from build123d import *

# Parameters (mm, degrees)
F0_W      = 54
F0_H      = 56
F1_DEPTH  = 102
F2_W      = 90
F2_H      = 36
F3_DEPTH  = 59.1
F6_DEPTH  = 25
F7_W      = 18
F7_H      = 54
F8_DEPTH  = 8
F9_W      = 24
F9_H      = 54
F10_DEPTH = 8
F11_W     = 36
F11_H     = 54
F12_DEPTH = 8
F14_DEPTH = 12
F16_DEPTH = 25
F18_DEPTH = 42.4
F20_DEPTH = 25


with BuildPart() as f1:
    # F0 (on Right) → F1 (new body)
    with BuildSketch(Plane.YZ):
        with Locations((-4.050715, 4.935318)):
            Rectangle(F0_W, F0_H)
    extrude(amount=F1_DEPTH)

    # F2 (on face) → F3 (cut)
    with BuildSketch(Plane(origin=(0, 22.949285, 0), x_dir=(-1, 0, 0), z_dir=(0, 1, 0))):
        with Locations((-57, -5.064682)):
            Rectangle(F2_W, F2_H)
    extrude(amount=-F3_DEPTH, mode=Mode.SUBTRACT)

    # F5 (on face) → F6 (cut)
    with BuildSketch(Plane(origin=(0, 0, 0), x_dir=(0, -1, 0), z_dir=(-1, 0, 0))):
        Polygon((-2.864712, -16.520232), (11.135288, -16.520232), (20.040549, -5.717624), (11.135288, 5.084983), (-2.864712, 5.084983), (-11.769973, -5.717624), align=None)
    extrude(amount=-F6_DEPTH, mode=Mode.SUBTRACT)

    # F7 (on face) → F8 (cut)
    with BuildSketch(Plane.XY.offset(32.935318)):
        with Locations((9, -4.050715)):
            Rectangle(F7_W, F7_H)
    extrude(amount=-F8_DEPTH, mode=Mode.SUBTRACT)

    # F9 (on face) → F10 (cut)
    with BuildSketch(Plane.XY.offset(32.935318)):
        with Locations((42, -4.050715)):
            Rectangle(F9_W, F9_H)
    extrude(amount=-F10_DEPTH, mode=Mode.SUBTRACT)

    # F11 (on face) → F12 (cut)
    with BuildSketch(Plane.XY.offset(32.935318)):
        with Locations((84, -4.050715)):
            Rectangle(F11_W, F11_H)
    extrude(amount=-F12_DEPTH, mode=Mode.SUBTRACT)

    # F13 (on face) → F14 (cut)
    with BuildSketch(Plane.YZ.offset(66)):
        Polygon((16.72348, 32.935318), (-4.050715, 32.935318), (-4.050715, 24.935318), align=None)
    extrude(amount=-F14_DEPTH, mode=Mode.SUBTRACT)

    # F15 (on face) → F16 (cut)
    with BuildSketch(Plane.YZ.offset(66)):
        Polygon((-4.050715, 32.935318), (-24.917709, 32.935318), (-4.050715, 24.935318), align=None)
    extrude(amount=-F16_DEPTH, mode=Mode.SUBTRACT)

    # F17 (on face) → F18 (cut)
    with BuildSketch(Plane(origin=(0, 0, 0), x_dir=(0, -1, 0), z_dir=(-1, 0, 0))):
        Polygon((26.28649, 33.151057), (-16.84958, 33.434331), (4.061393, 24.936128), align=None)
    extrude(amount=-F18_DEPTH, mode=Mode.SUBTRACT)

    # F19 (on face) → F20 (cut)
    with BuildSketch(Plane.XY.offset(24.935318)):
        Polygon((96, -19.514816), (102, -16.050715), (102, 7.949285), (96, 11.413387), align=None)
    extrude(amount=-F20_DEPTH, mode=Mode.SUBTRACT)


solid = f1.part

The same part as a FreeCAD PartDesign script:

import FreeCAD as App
import Part
import Sketcher
Q = App.Units.Quantity


def add_polygon(sketch, points):
    """Adds a closed chain of lines whose ends are joined by coincident constraints."""
    first, n = sketch.GeometryCount, len(points)
    for a, b in zip(points, points[1:] + points[:1]):
        sketch.addGeometry(Part.LineSegment(App.Vector(*a, 0), App.Vector(*b, 0)), False)
    for i in range(n):
        sketch.addConstraint(Sketcher.Constraint("Coincident", first + i, 2, first + (i + 1) % n, 1))

doc = App.newDocument("Part")
params = doc.addObject("Spreadsheet::Sheet", "Params")
for row, (alias, value) in enumerate([
    ("sketch1_width", "54 mm"),
    ("sketch1_height", "56 mm"),
    ("pad1_length", "102 mm"),
    ("sketch2_width", "90 mm"),
    ("sketch2_height", "36 mm"),
    ("pocket1_length", "59.1 mm"),
    ("sketch3_width", "14 mm"),
    ("sketch3_length", "14 mm"),
    ("pocket2_length", "25 mm"),
    ("sketch4_width", "18 mm"),
    ("sketch4_height", "54 mm"),
    ("pocket3_length", "8 mm"),
    ("sketch5_width", "24 mm"),
    ("sketch5_height", "54 mm"),
    ("pocket4_length", "8 mm"),
    ("sketch6_width", "36 mm"),
    ("sketch6_height", "54 mm"),
    ("pocket5_length", "8 mm"),
    ("sketch7_height", "8 mm"),
    ("pocket6_length", "12 mm"),
    ("sketch8_height", "8 mm"),
    ("pocket7_length", "25 mm"),
    ("pocket8_length", "42.4 mm"),
    ("sketch10_height", "24 mm"),
    ("pocket9_length", "25 mm"),
], start=1):
    params.set(f"A{row}", alias)
    params.set(f"B{row}", "=" + value)
    params.setAlias(f"B{row}", alias)

body = doc.addObject("PartDesign::Body", "Body")

# Sketch on YZ plane
sketch1 = doc.addObject("Sketcher::SketchObject", "Sketch")
body.addObject(sketch1)
sketch1.AttachmentSupport = (doc.YZ_Plane, [""])
sketch1.MapMode = "FlatFace"
add_polygon(sketch1, [(-31.050715, 32.935318), (-31.050715, -23.064682), (22.949285, -23.064682), (22.949285, 32.935318)])  # lines 0-3
sketch1.addConstraint(Sketcher.Constraint("Vertical", 0))
sketch1.addConstraint(Sketcher.Constraint("Horizontal", 1))
sketch1.addConstraint(Sketcher.Constraint("Vertical", 2))
sketch1.addConstraint(Sketcher.Constraint("Horizontal", 3))
sketch1.addConstraint(Sketcher.Constraint("DistanceX", 1, 1, 1, 2, 54.0))
sketch1.addConstraint(Sketcher.Constraint("DistanceY", 0, 2, 0, 1, 56.0))
sketch1.addConstraint(Sketcher.Constraint("DistanceY", -1, 1, 2, 2, 32.935318))
sketch1.addConstraint(Sketcher.Constraint("DistanceX", 0, 2, -1, 1, 31.050715))
sketch1.setExpression("Constraints[8]", "Params.sketch1_width")
sketch1.setExpression("Constraints[9]", "Params.sketch1_height")
pad1 = doc.addObject("PartDesign::Pad", "Pad")
body.addObject(pad1)
pad1.Profile = sketch1
pad1.setExpression("Length", "Params.pad1_length")

# Sketch on XZ plane
sketch2 = doc.addObject("Sketcher::SketchObject", "Sketch001")
body.addObject(sketch2)
sketch2.AttachmentSupport = (doc.XZ_Plane, [""])
sketch2.MapMode = "FlatFace"
sketch2.AttachmentOffset = App.Placement(App.Vector(0, 0, -22.949285), App.Rotation())
add_polygon(sketch2, [(102, 12.935318), (102, -23.064682), (12, -23.064682), (12, 12.935318)])  # lines 0-3
sketch2.addConstraint(Sketcher.Constraint("Vertical", 0))
sketch2.addConstraint(Sketcher.Constraint("Horizontal", 1))
sketch2.addConstraint(Sketcher.Constraint("Vertical", 2))
sketch2.addConstraint(Sketcher.Constraint("Horizontal", 3))
sketch2.addConstraint(Sketcher.Constraint("DistanceX", 1, 2, 1, 1, 90.0))
sketch2.addConstraint(Sketcher.Constraint("DistanceY", 0, 2, 0, 1, 36.0))
sketch2.addConstraint(Sketcher.Constraint("DistanceX", -1, 1, 0, 2, 102.0))
sketch2.addConstraint(Sketcher.Constraint("DistanceY", 0, 2, -1, 1, 23.064682))
sketch2.setExpression("Constraints[8]", "Params.sketch2_width")
sketch2.setExpression("Constraints[9]", "Params.sketch2_height")
pocket1 = doc.addObject("PartDesign::Pocket", "Pocket")
body.addObject(pocket1)
pocket1.Profile = sketch2
pocket1.setExpression("Length", "Params.pocket1_length")
pocket1.Reversed = True

# Sketch on YZ plane
sketch3 = doc.addObject("Sketcher::SketchObject", "Sketch002")
body.addObject(sketch3)
sketch3.AttachmentSupport = (doc.YZ_Plane, [""])
sketch3.MapMode = "FlatFace"
add_polygon(sketch3, [(2.864712, -16.520232), (-11.135288, -16.520232), (-20.040549, -5.717624), (-11.135288, 5.084983), (2.864712, 5.084983), (11.769973, -5.717624)])  # lines 0-5
sketch3.addConstraint(Sketcher.Constraint("Horizontal", 0))
sketch3.addConstraint(Sketcher.Constraint("Horizontal", 3))
sketch3.addConstraint(Sketcher.Constraint("Parallel", 1, 4))
sketch3.addConstraint(Sketcher.Constraint("Parallel", 2, 5))
sketch3.addConstraint(Sketcher.Constraint("Horizontal", 1, 2, 4, 2))
sketch3.addConstraint(Sketcher.Constraint("Vertical", 0, 2, 2, 2))
sketch3.addConstraint(Sketcher.Constraint("Vertical", 3, 2, 5, 2))
sketch3.addConstraint(Sketcher.Constraint("DistanceX", 0, 2, 0, 1, 14.0))
sketch3.addConstraint(Sketcher.Constraint("Distance", 1, 14.0))
sketch3.addConstraint(Sketcher.Constraint("DistanceY", 0, 2, -1, 1, 16.520232))
sketch3.addConstraint(Sketcher.Constraint("DistanceX", 1, 2, -1, 1, 20.040549))
sketch3.addConstraint(Sketcher.Constraint("DistanceX", -1, 1, 3, 2, 2.864712))
sketch3.setExpression("Constraints[13]", "Params.sketch3_width")
sketch3.setExpression("Constraints[14]", "Params.sketch3_length")
pocket2 = doc.addObject("PartDesign::Pocket", "Pocket001")
body.addObject(pocket2)
pocket2.Profile = sketch3
pocket2.setExpression("Length", "Params.pocket2_length")
pocket2.Reversed = True

# Sketch on XY plane
sketch4 = doc.addObject("Sketcher::SketchObject", "Sketch003")
body.addObject(sketch4)
sketch4.AttachmentSupport = (doc.XY_Plane, [""])
sketch4.MapMode = "FlatFace"
sketch4.AttachmentOffset = App.Placement(App.Vector(0, 0, 32.935318), App.Rotation())
add_polygon(sketch4, [(0, 22.949285), (0, -31.050715), (18, -31.050715), (18, 22.949285)])  # lines 0-3
sketch4.addConstraint(Sketcher.Constraint("Vertical", 0))
sketch4.addConstraint(Sketcher.Constraint("Horizontal", 1))
sketch4.addConstraint(Sketcher.Constraint("Vertical", 2))
sketch4.addConstraint(Sketcher.Constraint("Horizontal", 3))
sketch4.addConstraint(Sketcher.Constraint("PointOnObject", 0, 2, -2))
sketch4.addConstraint(Sketcher.Constraint("DistanceX", 1, 1, 1, 2, 18.0))
sketch4.addConstraint(Sketcher.Constraint("DistanceY", 0, 2, 0, 1, 54.0))
sketch4.addConstraint(Sketcher.Constraint("DistanceY", 0, 2, -1, 1, 31.050715))
sketch4.setExpression("Constraints[9]", "Params.sketch4_width")
sketch4.setExpression("Constraints[10]", "Params.sketch4_height")
pocket3 = doc.addObject("PartDesign::Pocket", "Pocket002")
body.addObject(pocket3)
pocket3.Profile = sketch4
pocket3.setExpression("Length", "Params.pocket3_length")

# Sketch on XY plane
sketch5 = doc.addObject("Sketcher::SketchObject", "Sketch004")
body.addObject(sketch5)
sketch5.AttachmentSupport = (doc.XY_Plane, [""])
sketch5.MapMode = "FlatFace"
sketch5.AttachmentOffset = App.Placement(App.Vector(0, 0, 32.935318), App.Rotation())
add_polygon(sketch5, [(30, 22.949285), (30, -31.050715), (54, -31.050715), (54, 22.949285)])  # lines 0-3
sketch5.addConstraint(Sketcher.Constraint("Vertical", 0))
sketch5.addConstraint(Sketcher.Constraint("Horizontal", 1))
sketch5.addConstraint(Sketcher.Constraint("Vertical", 2))
sketch5.addConstraint(Sketcher.Constraint("Horizontal", 3))
sketch5.addConstraint(Sketcher.Constraint("DistanceX", 1, 1, 1, 2, 24.0))
sketch5.addConstraint(Sketcher.Constraint("DistanceY", 0, 2, 0, 1, 54.0))
sketch5.addConstraint(Sketcher.Constraint("DistanceX", -1, 1, 0, 2, 30.0))
sketch5.addConstraint(Sketcher.Constraint("DistanceY", 0, 2, -1, 1, 31.050715))
sketch5.setExpression("Constraints[8]", "Params.sketch5_width")
sketch5.setExpression("Constraints[9]", "Params.sketch5_height")
pocket4 = doc.addObject("PartDesign::Pocket", "Pocket003")
body.addObject(pocket4)
pocket4.Profile = sketch5
pocket4.setExpression("Length", "Params.pocket4_length")

# Sketch on XY plane
sketch6 = doc.addObject("Sketcher::SketchObject", "Sketch005")
body.addObject(sketch6)
sketch6.AttachmentSupport = (doc.XY_Plane, [""])
sketch6.MapMode = "FlatFace"
sketch6.AttachmentOffset = App.Placement(App.Vector(0, 0, 32.935318), App.Rotation())
add_polygon(sketch6, [(66, 22.949285), (66, -31.050715), (102, -31.050715), (102, 22.949285)])  # lines 0-3
sketch6.addConstraint(Sketcher.Constraint("Vertical", 0))
sketch6.addConstraint(Sketcher.Constraint("Horizontal", 1))
sketch6.addConstraint(Sketcher.Constraint("Vertical", 2))
sketch6.addConstraint(Sketcher.Constraint("Horizontal", 3))
sketch6.addConstraint(Sketcher.Constraint("DistanceX", 1, 1, 1, 2, 36.0))
sketch6.addConstraint(Sketcher.Constraint("DistanceY", 0, 2, 0, 1, 54.0))
sketch6.addConstraint(Sketcher.Constraint("DistanceX", -1, 1, 0, 2, 66.0))
sketch6.addConstraint(Sketcher.Constraint("DistanceY", 0, 2, -1, 1, 31.050715))
sketch6.setExpression("Constraints[8]", "Params.sketch6_width")
sketch6.setExpression("Constraints[9]", "Params.sketch6_height")
pocket5 = doc.addObject("PartDesign::Pocket", "Pocket004")
body.addObject(pocket5)
pocket5.Profile = sketch6
pocket5.setExpression("Length", "Params.pocket5_length")

# Sketch on YZ plane
sketch7 = doc.addObject("Sketcher::SketchObject", "Sketch006")
body.addObject(sketch7)
sketch7.AttachmentSupport = (doc.YZ_Plane, [""])
sketch7.MapMode = "FlatFace"
sketch7.AttachmentOffset = App.Placement(App.Vector(0, 0, 66), App.Rotation())
add_polygon(sketch7, [(16.72348, 32.935318), (-4.050715, 32.935318), (-4.050715, 24.935318)])  # lines 0-2
sketch7.addConstraint(Sketcher.Constraint("Horizontal", 0))
sketch7.addConstraint(Sketcher.Constraint("Vertical", 1))
sketch7.addConstraint(Sketcher.Constraint("DistanceY", 1, 2, 1, 1, 8.0))
sketch7.addConstraint(Sketcher.Constraint("Distance", 2, 22.261338))
sketch7.addConstraint(Sketcher.Constraint("DistanceY", -1, 1, 0, 2, 32.935318))
sketch7.addConstraint(Sketcher.Constraint("DistanceX", -1, 1, 2, 2, 16.72348))
sketch7.setExpression("Constraints[5]", "Params.sketch7_height")
pocket6 = doc.addObject("PartDesign::Pocket", "Pocket005")
body.addObject(pocket6)
pocket6.Profile = sketch7
pocket6.setExpression("Length", "Params.pocket6_length")

# Sketch on YZ plane
sketch8 = doc.addObject("Sketcher::SketchObject", "Sketch007")
body.addObject(sketch8)
sketch8.AttachmentSupport = (doc.YZ_Plane, [""])
sketch8.MapMode = "FlatFace"
sketch8.AttachmentOffset = App.Placement(App.Vector(0, 0, 66), App.Rotation())
add_polygon(sketch8, [(-4.050715, 32.935318), (-24.917709, 32.935318), (-4.050715, 24.935318)])  # lines 0-2
sketch8.addConstraint(Sketcher.Constraint("Horizontal", 0))
sketch8.addConstraint(Sketcher.Constraint("Vertical", 2))
sketch8.addConstraint(Sketcher.Constraint("DistanceY", 2, 1, 2, 2, 8.0))
sketch8.addConstraint(Sketcher.Constraint("DistanceX", 0, 2, 0, 1, 20.866994))
sketch8.addConstraint(Sketcher.Constraint("DistanceX", 0, 2, -1, 1, 24.917709))
sketch8.addConstraint(Sketcher.Constraint("DistanceY", -1, 1, 0, 2, 32.935318))
sketch8.setExpression("Constraints[5]", "Params.sketch8_height")
pocket7 = doc.addObject("PartDesign::Pocket", "Pocket006")
body.addObject(pocket7)
pocket7.Profile = sketch8
pocket7.setExpression("Length", "Params.pocket7_length")

# Sketch on YZ plane
sketch9 = doc.addObject("Sketcher::SketchObject", "Sketch008")
body.addObject(sketch9)
sketch9.AttachmentSupport = (doc.YZ_Plane, [""])
sketch9.MapMode = "FlatFace"
add_polygon(sketch9, [(-26.28649, 33.151057), (16.84958, 33.434331), (-4.061393, 24.936128)])  # lines 0-2
sketch9.addConstraint(Sketcher.Constraint("Distance", 0, 43.137))
sketch9.addConstraint(Sketcher.Constraint("DistanceX", -1, 1, 0, 2, 16.84958))
sketch9.addConstraint(Sketcher.Constraint("DistanceY", -1, 1, 0, 2, 33.434331))
sketch9.addConstraint(Sketcher.Constraint("DistanceY", -1, 1, 1, 2, 24.936128))
sketch9.addConstraint(Sketcher.Constraint("DistanceX", 2, 2, -1, 1, 26.28649))
sketch9.addConstraint(Sketcher.Constraint("Distance", 1, 22.571846))
pocket8 = doc.addObject("PartDesign::Pocket", "Pocket007")
body.addObject(pocket8)
pocket8.Profile = sketch9
pocket8.setExpression("Length", "Params.pocket8_length")
pocket8.Reversed = True

# Sketch on XY plane
sketch10 = doc.addObject("Sketcher::SketchObject", "Sketch009")
body.addObject(sketch10)
sketch10.AttachmentSupport = (doc.XY_Plane, [""])
sketch10.MapMode = "FlatFace"
sketch10.AttachmentOffset = App.Placement(App.Vector(0, 0, 24.935318), App.Rotation())
add_polygon(sketch10, [(96, -19.514816), (102, -16.050715), (102, 7.949285), (96, 11.413387)])  # lines 0-3
sketch10.addConstraint(Sketcher.Constraint("Vertical", 1))
sketch10.addConstraint(Sketcher.Constraint("Vertical", 3))
sketch10.addConstraint(Sketcher.Constraint("Equal", 0, 2))
sketch10.addConstraint(Sketcher.Constraint("DistanceY", 1, 1, 1, 2, 24.0))
sketch10.addConstraint(Sketcher.Constraint("Angle", 0, Q("29.999996 deg")))
sketch10.addConstraint(Sketcher.Constraint("DistanceX", -1, 1, 0, 2, 102.0))
sketch10.addConstraint(Sketcher.Constraint("DistanceX", -1, 1, 2, 2, 96.0))
sketch10.addConstraint(Sketcher.Constraint("DistanceY", 0, 2, -1, 1, 16.050715))
sketch10.setExpression("Constraints[7]", "Params.sketch10_height")
pocket9 = doc.addObject("PartDesign::Pocket", "Pocket008")
body.addObject(pocket9)
pocket9.Profile = sketch10
pocket9.setExpression("Length", "Params.pocket9_length")

doc.recompute()
